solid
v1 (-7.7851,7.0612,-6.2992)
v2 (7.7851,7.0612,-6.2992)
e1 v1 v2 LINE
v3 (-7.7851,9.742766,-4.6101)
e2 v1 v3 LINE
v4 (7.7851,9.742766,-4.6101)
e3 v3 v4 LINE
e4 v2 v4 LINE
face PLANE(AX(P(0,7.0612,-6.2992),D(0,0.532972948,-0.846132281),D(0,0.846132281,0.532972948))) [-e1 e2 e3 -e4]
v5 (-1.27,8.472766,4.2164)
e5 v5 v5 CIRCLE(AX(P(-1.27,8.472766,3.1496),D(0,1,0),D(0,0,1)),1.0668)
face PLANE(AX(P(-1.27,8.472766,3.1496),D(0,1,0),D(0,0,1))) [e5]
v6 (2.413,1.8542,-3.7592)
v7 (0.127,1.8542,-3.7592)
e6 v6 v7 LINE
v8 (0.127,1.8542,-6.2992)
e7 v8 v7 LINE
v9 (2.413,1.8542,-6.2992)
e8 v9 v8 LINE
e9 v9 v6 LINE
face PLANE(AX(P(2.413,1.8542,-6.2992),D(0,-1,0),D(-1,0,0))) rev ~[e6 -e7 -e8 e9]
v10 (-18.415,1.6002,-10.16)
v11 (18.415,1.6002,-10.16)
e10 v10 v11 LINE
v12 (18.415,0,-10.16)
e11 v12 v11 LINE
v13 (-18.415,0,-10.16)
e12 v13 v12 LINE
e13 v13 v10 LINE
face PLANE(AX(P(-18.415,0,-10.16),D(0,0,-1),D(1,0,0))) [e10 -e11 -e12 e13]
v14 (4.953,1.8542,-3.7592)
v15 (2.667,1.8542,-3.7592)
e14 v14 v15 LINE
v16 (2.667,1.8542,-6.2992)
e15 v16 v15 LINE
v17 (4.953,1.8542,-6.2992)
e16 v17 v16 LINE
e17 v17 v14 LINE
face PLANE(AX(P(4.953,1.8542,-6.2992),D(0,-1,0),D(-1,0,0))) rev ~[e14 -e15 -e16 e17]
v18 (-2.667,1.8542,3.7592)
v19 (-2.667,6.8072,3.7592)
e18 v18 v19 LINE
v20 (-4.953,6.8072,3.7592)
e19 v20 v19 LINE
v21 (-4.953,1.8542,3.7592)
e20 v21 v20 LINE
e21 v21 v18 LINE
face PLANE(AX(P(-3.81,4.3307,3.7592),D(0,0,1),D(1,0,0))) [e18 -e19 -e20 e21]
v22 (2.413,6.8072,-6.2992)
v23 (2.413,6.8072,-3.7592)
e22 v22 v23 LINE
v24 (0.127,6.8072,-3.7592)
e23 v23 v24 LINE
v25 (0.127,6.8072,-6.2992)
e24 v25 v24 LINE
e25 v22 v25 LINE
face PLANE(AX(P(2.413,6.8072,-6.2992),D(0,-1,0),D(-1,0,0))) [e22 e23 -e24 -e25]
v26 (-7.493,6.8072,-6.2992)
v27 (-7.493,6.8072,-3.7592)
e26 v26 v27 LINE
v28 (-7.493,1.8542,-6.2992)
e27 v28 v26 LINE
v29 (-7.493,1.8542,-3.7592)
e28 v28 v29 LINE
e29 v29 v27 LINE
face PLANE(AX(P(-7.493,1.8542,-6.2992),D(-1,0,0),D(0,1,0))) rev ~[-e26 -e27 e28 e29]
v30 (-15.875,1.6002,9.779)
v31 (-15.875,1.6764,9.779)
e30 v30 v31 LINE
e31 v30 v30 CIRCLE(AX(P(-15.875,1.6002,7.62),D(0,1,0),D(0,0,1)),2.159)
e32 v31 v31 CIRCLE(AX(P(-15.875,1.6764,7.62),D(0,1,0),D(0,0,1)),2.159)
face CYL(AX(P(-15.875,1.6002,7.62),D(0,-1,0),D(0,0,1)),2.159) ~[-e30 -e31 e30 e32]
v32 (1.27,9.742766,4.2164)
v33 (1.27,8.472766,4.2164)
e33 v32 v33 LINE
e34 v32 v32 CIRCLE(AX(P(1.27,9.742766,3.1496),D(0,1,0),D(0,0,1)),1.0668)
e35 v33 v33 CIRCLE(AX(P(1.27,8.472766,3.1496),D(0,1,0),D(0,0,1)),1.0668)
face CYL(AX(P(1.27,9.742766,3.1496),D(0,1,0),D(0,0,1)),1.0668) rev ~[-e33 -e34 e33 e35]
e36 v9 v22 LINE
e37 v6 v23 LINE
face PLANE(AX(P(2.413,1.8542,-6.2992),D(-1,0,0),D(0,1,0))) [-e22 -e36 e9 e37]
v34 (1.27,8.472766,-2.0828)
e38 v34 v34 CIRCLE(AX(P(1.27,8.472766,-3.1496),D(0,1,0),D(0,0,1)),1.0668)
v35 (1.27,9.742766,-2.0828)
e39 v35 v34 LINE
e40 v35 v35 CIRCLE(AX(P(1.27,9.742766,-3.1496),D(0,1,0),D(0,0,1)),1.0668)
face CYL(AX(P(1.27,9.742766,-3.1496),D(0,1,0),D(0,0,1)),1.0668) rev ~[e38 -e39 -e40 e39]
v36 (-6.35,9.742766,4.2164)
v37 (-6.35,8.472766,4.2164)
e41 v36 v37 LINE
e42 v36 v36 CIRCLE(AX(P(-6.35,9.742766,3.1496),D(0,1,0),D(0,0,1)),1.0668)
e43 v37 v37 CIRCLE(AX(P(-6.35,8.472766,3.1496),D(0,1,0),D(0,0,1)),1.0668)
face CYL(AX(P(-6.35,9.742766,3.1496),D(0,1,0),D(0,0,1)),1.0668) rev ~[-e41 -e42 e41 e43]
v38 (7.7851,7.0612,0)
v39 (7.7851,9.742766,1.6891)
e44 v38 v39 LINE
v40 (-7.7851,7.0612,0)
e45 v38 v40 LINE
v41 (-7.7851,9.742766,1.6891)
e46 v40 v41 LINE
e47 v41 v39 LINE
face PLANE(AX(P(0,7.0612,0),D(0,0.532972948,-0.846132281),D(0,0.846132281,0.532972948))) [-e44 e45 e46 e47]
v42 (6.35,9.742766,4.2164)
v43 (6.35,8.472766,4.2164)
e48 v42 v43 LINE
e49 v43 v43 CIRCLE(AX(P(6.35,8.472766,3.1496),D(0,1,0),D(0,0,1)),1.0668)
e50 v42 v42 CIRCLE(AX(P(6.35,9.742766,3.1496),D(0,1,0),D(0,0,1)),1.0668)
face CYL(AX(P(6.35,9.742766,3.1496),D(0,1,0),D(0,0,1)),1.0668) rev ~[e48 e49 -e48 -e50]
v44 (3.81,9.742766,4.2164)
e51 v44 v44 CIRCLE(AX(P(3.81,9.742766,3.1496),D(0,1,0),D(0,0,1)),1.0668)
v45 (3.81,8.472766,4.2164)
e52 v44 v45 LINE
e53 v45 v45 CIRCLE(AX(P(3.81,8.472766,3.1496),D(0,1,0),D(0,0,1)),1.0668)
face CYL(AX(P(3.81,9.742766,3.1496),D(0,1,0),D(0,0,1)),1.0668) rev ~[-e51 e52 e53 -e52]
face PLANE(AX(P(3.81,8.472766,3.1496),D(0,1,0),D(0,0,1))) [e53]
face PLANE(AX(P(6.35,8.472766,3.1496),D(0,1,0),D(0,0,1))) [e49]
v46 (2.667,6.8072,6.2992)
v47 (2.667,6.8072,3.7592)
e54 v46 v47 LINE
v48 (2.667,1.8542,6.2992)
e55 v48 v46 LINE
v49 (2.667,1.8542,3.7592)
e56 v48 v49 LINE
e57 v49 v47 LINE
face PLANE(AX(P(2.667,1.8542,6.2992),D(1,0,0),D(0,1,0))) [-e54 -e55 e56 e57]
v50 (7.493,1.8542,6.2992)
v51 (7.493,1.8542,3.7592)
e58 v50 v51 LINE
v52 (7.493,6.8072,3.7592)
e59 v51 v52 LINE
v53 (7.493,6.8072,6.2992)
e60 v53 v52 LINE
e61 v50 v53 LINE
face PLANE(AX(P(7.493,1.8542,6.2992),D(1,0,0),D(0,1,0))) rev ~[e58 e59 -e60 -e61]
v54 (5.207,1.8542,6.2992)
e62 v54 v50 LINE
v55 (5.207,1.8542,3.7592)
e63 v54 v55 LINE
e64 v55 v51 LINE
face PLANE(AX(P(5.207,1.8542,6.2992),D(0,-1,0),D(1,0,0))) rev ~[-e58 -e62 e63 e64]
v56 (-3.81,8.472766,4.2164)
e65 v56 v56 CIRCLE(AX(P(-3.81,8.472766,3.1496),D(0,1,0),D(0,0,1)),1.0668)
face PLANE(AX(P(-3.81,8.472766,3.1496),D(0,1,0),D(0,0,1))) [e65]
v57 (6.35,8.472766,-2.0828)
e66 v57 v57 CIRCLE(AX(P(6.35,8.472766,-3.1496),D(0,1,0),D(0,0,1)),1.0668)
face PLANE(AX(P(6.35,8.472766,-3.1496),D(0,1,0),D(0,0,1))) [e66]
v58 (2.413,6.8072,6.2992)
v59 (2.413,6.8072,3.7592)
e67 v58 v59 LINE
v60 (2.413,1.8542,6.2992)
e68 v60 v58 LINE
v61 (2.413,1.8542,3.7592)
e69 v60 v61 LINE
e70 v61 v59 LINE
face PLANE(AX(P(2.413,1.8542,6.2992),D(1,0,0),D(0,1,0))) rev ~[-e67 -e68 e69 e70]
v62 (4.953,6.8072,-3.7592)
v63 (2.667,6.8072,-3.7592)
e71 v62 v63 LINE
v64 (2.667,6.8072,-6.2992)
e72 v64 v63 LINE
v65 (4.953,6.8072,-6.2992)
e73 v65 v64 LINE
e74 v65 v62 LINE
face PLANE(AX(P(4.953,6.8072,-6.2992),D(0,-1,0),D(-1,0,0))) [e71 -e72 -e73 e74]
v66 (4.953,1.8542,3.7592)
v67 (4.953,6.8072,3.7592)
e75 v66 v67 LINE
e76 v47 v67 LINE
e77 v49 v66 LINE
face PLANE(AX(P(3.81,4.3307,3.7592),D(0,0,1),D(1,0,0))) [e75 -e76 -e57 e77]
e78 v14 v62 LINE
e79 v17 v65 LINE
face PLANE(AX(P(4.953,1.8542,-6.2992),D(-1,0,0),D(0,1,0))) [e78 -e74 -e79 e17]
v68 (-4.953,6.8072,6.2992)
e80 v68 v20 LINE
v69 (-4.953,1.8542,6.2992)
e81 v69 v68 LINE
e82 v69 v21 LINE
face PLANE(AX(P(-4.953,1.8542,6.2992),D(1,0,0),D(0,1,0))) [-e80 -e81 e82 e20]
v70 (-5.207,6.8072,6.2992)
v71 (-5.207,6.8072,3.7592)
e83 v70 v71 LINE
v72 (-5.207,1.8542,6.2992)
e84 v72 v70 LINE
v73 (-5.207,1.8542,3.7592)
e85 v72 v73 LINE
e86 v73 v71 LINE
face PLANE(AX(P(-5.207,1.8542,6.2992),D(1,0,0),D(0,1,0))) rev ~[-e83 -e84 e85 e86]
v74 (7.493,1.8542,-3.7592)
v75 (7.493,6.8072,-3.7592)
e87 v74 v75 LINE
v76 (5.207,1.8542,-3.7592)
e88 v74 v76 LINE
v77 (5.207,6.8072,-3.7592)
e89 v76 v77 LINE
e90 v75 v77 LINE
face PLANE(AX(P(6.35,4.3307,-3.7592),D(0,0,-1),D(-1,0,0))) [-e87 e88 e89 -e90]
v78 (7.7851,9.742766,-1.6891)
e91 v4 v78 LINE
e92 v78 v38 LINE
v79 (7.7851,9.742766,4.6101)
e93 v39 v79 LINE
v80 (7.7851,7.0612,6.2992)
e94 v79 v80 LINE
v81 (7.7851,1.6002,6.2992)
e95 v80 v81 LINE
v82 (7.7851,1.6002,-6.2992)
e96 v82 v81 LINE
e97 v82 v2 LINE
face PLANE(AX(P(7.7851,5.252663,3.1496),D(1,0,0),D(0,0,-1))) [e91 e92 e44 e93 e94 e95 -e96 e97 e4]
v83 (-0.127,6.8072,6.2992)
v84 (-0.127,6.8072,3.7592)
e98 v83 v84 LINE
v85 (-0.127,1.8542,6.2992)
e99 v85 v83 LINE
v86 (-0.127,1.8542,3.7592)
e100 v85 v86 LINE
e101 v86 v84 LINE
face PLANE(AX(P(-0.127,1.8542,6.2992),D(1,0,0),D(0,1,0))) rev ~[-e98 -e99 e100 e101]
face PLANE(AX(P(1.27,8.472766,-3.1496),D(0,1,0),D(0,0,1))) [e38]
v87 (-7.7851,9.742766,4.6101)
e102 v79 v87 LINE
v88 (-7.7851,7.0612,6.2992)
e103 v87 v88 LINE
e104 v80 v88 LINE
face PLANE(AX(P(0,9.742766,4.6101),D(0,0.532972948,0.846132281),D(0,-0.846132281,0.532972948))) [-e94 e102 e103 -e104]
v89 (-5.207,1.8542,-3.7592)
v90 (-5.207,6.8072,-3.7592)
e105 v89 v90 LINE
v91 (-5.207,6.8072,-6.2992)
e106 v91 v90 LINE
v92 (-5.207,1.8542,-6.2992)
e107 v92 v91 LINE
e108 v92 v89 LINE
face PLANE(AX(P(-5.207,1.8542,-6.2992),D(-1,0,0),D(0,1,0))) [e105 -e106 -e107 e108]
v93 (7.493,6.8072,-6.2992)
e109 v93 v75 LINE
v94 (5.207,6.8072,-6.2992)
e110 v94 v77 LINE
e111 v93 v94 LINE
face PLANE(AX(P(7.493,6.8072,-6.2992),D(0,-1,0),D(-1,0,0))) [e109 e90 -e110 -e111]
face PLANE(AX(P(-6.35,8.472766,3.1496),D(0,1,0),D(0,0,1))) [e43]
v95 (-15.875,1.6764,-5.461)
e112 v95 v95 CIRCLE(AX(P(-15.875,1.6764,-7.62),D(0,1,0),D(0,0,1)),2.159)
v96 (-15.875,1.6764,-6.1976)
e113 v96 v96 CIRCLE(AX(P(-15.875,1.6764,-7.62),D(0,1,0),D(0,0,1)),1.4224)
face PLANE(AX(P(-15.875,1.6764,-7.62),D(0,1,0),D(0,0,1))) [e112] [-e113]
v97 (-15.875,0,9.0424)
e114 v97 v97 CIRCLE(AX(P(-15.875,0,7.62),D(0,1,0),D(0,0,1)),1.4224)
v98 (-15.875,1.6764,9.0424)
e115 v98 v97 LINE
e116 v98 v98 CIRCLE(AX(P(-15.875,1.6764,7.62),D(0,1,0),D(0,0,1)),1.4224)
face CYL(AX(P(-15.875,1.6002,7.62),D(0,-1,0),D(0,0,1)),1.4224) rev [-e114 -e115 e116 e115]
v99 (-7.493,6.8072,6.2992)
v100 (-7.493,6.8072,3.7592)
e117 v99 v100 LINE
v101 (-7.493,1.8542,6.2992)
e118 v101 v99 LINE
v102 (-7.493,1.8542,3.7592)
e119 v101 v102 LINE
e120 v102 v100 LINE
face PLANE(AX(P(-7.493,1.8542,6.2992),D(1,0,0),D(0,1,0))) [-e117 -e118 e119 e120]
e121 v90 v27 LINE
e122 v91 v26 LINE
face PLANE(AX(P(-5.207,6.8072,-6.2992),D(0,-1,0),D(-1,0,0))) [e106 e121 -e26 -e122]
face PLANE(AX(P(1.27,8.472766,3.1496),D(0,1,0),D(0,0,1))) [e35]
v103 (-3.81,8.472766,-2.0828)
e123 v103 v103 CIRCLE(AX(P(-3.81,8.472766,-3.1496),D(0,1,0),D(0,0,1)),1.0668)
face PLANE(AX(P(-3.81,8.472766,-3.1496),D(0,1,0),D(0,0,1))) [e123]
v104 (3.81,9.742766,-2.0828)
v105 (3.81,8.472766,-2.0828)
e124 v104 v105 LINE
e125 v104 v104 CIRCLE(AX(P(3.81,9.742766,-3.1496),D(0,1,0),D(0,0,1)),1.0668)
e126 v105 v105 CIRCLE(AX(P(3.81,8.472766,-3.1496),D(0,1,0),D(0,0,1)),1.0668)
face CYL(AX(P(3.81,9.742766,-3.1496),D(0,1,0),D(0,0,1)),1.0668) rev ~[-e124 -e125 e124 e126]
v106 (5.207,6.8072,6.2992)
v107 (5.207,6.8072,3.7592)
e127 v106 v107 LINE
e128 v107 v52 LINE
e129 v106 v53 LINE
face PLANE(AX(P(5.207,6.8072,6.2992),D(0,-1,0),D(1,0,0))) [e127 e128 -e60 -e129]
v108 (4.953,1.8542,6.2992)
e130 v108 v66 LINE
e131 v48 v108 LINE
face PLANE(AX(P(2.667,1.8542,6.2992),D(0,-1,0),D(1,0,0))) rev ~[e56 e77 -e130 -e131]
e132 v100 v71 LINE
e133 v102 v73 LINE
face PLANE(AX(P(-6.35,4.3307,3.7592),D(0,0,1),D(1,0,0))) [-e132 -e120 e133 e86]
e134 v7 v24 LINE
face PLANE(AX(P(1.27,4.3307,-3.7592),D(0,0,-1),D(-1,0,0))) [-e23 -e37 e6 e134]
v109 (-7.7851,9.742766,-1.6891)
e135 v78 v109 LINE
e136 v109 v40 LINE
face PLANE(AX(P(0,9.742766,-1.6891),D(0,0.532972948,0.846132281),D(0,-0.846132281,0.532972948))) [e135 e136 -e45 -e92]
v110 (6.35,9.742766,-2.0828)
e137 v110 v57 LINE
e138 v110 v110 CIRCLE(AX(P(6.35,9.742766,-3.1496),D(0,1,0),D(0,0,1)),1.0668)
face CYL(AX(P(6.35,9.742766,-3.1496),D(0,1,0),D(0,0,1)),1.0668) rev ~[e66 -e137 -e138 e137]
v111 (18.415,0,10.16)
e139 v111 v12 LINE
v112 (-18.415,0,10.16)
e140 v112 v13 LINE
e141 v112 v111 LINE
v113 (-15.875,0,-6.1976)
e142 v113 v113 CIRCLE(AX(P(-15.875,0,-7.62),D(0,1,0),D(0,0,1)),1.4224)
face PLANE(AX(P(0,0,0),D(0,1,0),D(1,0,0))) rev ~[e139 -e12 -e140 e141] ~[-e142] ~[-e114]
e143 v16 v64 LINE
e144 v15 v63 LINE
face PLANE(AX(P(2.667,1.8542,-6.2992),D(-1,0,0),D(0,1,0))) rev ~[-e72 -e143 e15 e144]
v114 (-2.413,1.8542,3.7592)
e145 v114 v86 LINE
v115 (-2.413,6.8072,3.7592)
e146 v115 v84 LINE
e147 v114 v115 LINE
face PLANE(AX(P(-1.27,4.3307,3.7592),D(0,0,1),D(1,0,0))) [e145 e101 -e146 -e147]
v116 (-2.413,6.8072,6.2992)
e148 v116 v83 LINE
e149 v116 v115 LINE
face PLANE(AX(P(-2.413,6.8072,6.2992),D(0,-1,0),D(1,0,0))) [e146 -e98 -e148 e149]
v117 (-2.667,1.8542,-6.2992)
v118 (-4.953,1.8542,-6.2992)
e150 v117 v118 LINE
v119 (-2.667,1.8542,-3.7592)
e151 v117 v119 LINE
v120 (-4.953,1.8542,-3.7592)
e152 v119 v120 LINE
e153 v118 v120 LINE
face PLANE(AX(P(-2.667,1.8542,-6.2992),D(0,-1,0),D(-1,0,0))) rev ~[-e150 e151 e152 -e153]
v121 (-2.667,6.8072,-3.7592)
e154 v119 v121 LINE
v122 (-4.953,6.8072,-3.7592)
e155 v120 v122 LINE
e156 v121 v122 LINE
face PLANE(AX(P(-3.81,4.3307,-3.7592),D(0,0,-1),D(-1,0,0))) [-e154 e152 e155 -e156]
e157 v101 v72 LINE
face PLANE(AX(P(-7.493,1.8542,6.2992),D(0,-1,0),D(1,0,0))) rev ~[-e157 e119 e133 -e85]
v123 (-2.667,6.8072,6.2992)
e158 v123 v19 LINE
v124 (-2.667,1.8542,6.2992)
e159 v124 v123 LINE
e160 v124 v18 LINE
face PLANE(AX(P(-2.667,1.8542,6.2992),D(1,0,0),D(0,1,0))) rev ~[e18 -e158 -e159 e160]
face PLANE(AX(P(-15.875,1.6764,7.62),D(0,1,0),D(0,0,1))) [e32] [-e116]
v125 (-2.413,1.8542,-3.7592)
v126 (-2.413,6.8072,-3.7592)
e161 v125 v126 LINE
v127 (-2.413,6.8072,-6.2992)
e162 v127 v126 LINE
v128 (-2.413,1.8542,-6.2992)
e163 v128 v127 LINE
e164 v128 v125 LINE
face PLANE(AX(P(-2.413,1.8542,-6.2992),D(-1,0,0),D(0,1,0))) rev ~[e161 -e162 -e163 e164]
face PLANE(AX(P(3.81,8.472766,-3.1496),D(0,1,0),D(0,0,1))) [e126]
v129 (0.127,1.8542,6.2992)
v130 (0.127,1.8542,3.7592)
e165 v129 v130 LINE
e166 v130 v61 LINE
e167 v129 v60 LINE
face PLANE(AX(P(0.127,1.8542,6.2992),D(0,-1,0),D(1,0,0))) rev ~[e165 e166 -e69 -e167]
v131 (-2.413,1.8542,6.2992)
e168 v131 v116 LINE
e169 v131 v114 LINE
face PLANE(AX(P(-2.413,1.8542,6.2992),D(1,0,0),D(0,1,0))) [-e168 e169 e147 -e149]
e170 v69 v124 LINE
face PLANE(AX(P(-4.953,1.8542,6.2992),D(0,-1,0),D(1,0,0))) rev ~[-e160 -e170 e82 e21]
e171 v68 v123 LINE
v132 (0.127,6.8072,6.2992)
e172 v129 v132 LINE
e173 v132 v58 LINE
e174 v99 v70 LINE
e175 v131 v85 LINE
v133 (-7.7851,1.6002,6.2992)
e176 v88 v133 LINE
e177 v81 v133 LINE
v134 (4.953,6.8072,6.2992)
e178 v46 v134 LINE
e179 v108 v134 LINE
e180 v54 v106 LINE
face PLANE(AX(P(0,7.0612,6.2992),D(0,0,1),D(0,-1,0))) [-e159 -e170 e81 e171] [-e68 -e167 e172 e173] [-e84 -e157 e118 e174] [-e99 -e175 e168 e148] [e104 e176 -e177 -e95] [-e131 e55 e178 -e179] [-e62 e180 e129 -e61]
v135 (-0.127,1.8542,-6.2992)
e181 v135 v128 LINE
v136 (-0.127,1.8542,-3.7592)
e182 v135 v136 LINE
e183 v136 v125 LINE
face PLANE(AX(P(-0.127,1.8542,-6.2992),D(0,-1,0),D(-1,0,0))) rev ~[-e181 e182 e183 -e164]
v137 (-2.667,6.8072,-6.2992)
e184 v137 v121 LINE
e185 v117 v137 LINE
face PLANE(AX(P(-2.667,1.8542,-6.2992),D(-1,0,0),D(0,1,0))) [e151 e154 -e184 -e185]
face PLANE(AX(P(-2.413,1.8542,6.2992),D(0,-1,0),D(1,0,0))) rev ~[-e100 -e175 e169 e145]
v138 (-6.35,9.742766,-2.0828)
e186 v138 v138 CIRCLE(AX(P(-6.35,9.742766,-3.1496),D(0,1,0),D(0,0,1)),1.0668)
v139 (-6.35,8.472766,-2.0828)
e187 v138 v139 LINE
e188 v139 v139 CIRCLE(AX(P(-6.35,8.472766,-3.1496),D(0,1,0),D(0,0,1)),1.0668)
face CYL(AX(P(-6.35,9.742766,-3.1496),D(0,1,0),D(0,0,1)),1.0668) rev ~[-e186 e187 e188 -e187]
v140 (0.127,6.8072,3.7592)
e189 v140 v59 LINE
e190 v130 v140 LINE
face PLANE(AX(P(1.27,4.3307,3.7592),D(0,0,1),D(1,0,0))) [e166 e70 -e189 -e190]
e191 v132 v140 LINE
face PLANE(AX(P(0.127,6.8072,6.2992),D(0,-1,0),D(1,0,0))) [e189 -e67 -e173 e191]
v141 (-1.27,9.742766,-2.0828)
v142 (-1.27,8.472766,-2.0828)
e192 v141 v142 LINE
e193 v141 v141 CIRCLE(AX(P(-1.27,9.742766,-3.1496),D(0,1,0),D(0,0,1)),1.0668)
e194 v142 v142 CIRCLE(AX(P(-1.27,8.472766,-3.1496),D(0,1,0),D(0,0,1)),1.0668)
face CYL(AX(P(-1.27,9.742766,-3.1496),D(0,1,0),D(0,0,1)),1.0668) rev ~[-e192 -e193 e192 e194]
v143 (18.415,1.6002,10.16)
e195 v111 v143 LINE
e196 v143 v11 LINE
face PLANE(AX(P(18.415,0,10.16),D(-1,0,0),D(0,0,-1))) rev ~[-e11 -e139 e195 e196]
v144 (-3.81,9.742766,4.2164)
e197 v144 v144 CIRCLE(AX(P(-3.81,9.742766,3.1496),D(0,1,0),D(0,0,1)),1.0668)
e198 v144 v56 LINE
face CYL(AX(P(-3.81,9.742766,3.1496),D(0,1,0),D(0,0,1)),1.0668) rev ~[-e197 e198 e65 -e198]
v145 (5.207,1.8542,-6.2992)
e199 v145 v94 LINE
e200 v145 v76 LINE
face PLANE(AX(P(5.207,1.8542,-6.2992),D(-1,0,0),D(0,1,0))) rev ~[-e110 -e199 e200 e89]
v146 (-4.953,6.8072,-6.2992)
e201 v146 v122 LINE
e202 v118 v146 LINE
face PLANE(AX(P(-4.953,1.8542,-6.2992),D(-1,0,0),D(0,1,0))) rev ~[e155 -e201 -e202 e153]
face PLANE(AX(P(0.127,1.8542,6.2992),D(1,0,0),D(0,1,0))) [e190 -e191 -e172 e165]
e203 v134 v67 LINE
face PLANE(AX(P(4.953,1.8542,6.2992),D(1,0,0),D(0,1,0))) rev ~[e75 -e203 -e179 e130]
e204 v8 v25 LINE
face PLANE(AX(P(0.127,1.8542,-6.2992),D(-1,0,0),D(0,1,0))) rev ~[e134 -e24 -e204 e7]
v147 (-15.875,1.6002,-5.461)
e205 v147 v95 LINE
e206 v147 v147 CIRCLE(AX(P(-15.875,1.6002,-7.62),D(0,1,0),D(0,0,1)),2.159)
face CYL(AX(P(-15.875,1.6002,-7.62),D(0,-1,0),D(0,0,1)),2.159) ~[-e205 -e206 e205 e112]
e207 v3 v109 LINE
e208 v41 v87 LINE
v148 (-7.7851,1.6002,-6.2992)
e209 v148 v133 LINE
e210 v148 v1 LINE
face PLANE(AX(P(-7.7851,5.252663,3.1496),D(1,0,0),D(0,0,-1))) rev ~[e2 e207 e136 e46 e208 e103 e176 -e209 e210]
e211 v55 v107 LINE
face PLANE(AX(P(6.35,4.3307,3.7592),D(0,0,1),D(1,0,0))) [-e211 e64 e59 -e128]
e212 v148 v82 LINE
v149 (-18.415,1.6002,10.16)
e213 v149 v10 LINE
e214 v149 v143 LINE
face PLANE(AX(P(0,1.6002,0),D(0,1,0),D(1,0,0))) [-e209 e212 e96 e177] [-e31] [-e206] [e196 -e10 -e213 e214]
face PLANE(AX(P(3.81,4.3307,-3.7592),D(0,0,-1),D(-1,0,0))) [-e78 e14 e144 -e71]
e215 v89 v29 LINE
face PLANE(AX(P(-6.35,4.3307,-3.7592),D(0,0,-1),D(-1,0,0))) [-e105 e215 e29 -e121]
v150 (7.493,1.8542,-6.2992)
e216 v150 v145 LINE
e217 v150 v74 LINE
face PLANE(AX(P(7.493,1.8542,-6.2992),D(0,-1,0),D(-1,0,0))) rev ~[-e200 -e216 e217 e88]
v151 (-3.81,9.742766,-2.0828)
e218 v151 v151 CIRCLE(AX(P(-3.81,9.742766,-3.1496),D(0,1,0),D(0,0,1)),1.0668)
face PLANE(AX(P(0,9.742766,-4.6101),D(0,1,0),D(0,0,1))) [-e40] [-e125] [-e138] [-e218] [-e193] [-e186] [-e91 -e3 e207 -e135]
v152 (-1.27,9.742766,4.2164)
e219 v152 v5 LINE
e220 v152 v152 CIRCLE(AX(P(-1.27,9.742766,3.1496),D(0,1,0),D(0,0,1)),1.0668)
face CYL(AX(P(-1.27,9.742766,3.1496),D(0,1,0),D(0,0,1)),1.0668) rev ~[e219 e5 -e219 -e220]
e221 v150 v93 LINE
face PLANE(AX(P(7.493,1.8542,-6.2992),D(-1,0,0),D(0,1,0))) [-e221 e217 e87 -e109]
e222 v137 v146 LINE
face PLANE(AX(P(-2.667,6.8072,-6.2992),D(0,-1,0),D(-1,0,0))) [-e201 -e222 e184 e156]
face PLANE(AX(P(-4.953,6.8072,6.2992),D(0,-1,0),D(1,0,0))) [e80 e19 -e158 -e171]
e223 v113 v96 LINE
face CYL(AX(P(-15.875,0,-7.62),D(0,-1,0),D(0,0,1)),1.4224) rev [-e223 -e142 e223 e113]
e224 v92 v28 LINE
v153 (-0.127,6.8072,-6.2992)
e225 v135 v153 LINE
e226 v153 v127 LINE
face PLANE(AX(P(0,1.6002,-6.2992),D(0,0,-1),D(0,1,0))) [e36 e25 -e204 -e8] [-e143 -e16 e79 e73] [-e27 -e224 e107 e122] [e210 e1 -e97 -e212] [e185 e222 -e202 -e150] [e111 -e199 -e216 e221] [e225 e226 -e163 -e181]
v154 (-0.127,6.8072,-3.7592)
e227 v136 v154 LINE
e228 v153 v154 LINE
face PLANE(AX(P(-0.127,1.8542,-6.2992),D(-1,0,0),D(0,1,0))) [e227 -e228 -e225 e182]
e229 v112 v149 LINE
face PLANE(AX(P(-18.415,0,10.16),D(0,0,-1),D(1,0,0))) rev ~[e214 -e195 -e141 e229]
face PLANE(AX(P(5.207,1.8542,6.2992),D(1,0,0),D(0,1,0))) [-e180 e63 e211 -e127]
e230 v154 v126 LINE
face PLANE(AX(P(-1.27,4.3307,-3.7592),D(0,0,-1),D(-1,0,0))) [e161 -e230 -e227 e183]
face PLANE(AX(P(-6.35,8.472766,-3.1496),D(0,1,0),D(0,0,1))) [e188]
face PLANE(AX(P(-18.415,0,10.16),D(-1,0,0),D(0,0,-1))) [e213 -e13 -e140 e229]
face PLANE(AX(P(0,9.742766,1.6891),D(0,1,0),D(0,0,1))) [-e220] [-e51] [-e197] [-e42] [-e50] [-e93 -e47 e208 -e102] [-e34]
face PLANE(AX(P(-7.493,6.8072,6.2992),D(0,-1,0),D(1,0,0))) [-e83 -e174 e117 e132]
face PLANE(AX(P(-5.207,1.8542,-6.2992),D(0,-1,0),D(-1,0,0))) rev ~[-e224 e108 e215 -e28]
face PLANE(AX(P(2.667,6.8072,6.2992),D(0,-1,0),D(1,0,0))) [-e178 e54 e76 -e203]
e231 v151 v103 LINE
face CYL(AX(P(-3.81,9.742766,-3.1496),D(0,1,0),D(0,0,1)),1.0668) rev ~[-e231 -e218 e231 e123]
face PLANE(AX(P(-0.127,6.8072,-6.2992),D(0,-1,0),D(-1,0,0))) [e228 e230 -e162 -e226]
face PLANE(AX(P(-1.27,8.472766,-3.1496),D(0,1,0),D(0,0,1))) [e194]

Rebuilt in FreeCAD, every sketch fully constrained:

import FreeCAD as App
import Part
import Sketcher

V = App.Vector
Q = App.Units.Quantity

doc = App.newDocument("Part")
params = doc.addObject("Spreadsheet::Sheet", "Params")
for row, (alias, value) in enumerate([
    ("sketch1_height", "0.8 in"),
    ("sketch1_width", "1.45 in"),
    ("pad1_length", "0.063 in"),
    ("sketch2_diameter", "0.112 in"),
    ("sketch3_width", "0.215 in"),
    ("sketch3_height", "0.248 in"),
    ("sketch3_height2", "0.115 in"),
    ("pad2_length", "0.613 in"),
    ("sketch4_width", "0.215 in"),
    ("sketch4_height", "0.248 in"),
    ("sketch4_height2", "0.115 in"),
    ("pad3_length", "0.613 in"),
    ("sketch5_width", "0.09 in"),
    ("sketch5_height", "0.195 in"),
    ("pocket2_length", "0.1 in"),
    ("sketch6_width", "0.09 in"),
    ("sketch6_height", "0.195 in"),
    ("pocket3_length", "0.1 in"),
    ("sketch7_diameter", "0.084 in"),
    ("pocket4_length", "0.05 in"),
    ("sketch8_diameter", "0.084 in"),
    ("pocket5_length", "0.05 in"),
    ("sketch9_diameter", "0.17 in"),
    ("sketch9_diameter2", "0.112 in"),
    ("pad4_length", "0.003 in"),
], start=1):
    params.set(f"A{row}", alias)
    params.set(f"B{row}", "=" + value)
    params.setAlias(f"B{row}", alias)

body = doc.addObject("PartDesign::Body", "Body")

# Sketch on XZ plane
sketch1 = body.newObject("Sketcher::SketchObject", "Sketch")
sketch1.AttachmentSupport = (doc.getObject("XZ_Plane"), [""])
sketch1.MapMode = "FlatFace"
sketch1.addGeometry([
    Part.LineSegment(V(-18, -10, 0), V(-18, 10, 0)),
    Part.LineSegment(V(-18, 10, 0), V(18, 10, 0)),
    Part.LineSegment(V(18, 10, 0), V(18, -10, 0)),
    Part.LineSegment(V(18, -10, 0), V(-18, -10, 0)),
], False)
sketch1.addConstraint([
    Sketcher.Constraint("Coincident", 0, 2, 1, 1),
    Sketcher.Constraint("Coincident", 1, 2, 2, 1),
    Sketcher.Constraint("Coincident", 2, 2, 3, 1),
    Sketcher.Constraint("Coincident", 3, 2, 0, 1),
    Sketcher.Constraint("Vertical", 0),
    Sketcher.Constraint("Horizontal", 1),
    Sketcher.Constraint("Vertical", 2),
    Sketcher.Constraint("Horizontal", 3),
    Sketcher.Constraint("Symmetric", 0, 2, 2, 2, -1, 1),
    Sketcher.Constraint("DistanceY", 0, 1, 0, 2, Q("0.8 in")),
    Sketcher.Constraint("DistanceX", 1, 1, 1, 2, Q("1.45 in")),
])
sketch1.setExpression("Constraints[9]", "Params.sketch1_height")
sketch1.setExpression("Constraints[10]", "Params.sketch1_width")
pad1 = body.newObject("PartDesign::Pad", "Pad")
pad1.Profile = sketch1
pad1.setExpression("Length", "Params.pad1_length")
pad1.Reversed = True

# Sketch on XZ plane
sketch2 = body.newObject("Sketcher::SketchObject", "Sketch001")
sketch2.AttachmentSupport = (doc.getObject("XZ_Plane"), [""])
sketch2.MapMode = "FlatFace"
sketch2.addGeometry([
    Part.Circle(V(-15.9, -7.6, 0), V(0, 0, 1), 1.4),
    Part.Circle(V(-15.9, 7.6, 0), V(0, 0, 1), 1.4),
], False)
sketch2.addConstraint([
    Sketcher.Constraint("Equal", 0, 1),
    Sketcher.Constraint("Symmetric", 0, 3, 1, 3, -1),
    Sketcher.Constraint("Diameter", 0, Q("0.112 in")),
    Sketcher.Constraint("DistanceY", 0, 3, -1, 1, Q("0.3 in")),
    Sketcher.Constraint("DistanceX", 0, 3, -1, 1, Q("0.625 in")),
])
sketch2.setExpression("Constraints[2]", "Params.sketch2_diameter")
pocket1 = body.newObject("PartDesign::Pocket", "Pocket")
pocket1.Profile = sketch2
pocket1.Type = "ThroughAll"

# Sketch on YZ plane
sketch3 = body.newObject("Sketcher::SketchObject", "Sketch002")
sketch3.AttachmentSupport = (doc.getObject("YZ_Plane"), [""])
sketch3.MapMode = "FlatFace"
sketch3.addGeometry([
    Part.LineSegment(V(1.6, 0, 0), V(1.6, -6.3, 0)),  # 0
    Part.LineSegment(V(1.6, -6.3, 0), V(7.1, -6.3, 0)),  # 1
    Part.LineSegment(V(7.1, -6.3, 0), V(9.7, -4.6, 0)),  # 2
    Part.LineSegment(V(9.7, -4.6, 0), V(9.7, -1.7, 0)),  # 3
    Part.LineSegment(V(9.7, -1.7, 0), V(7.1, 0, 0)),  # 4
    Part.LineSegment(V(7.1, 0, 0), V(1.6, 0, 0)),  # 5
], False)
sketch3.addConstraint([
    Sketcher.Constraint("Coincident", 0, 2, 1, 1),
    Sketcher.Constraint("Coincident", 1, 2, 2, 1),
    Sketcher.Constraint("Coincident", 2, 2, 3, 1),
    Sketcher.Constraint("Coincident", 3, 2, 4, 1),
    Sketcher.Constraint("Coincident", 4, 2, 5, 1),
    Sketcher.Constraint("Coincident", 5, 2, 0, 1),
    Sketcher.Constraint("Vertical", 0),
    Sketcher.Constraint("Horizontal", 1),
    Sketcher.Constraint("Vertical", 3),
    Sketcher.Constraint("Horizontal", 5),
    Sketcher.Constraint("PointOnObject", 4, 2, -1),
    Sketcher.Constraint("Vertical", 1, 2, 4, 2),
    Sketcher.Constraint("Equal", 2, 4),
    Sketcher.Constraint("DistanceX", 1, 1, 1, 2, Q("0.215 in")),
    Sketcher.Constraint("DistanceY", 0, 2, 0, 1, Q("0.248 in")),
    Sketcher.Constraint("DistanceY", 3, 1, 3, 2, Q("0.115 in")),
    Sketcher.Constraint("DistanceX", -1, 1, 0, 2, Q("0.063 in")),
    Sketcher.Constraint("Distance", 2, 3.169204),
])
sketch3.setExpression("Constraints[13]", "Params.sketch3_width")
sketch3.setExpression("Constraints[14]", "Params.sketch3_height")
sketch3.setExpression("Constraints[15]", "Params.sketch3_height2")
pad2 = body.newObject("PartDesign::Pad", "Pad001")
pad2.Profile = sketch3
pad2.setExpression("Length", "Params.pad2_length")
pad2.Midplane = True

# Sketch on YZ plane
sketch4 = body.newObject("Sketcher::SketchObject", "Sketch003")
sketch4.AttachmentSupport = (doc.getObject("YZ_Plane"), [""])
sketch4.MapMode = "FlatFace"
sketch4.addGeometry([
    Part.LineSegment(V(1.6, 6.3, 0), V(1.6, 0, 0)),  # 0
    Part.LineSegment(V(1.6, 0, 0), V(7.1, 0, 0)),  # 1
    Part.LineSegment(V(7.1, 0, 0), V(9.7, 1.7, 0)),  # 2
    Part.LineSegment(V(9.7, 1.7, 0), V(9.7, 4.6, 0)),  # 3
    Part.LineSegment(V(9.7, 4.6, 0), V(7.1, 6.3, 0)),  # 4
    Part.LineSegment(V(7.1, 6.3, 0), V(1.6, 6.3, 0)),  # 5
], False)
sketch4.addConstraint([
    Sketcher.Constraint("Coincident", 0, 2, 1, 1),
    Sketcher.Constraint("Coincident", 1, 2, 2, 1),
    Sketcher.Constraint("Coincident", 2, 2, 3, 1),
    Sketcher.Constraint("Coincident", 3, 2, 4, 1),
    Sketcher.Constraint("Coincident", 4, 2, 5, 1),
    Sketcher.Constraint("Coincident", 5, 2, 0, 1),
    Sketcher.Constraint("Vertical", 0),
    Sketcher.Constraint("Horizontal", 1),
    Sketcher.Constraint("Vertical", 3),
    Sketcher.Constraint("Horizontal", 5),
    Sketcher.Constraint("PointOnObject", 0, 2, -1),
    Sketcher.Constraint("Vertical", 1, 2, 4, 2),
    Sketcher.Constraint("Equal", 2, 4),
    Sketcher.Constraint("DistanceX", 1, 1, 1, 2, Q("0.215 in")),
    Sketcher.Constraint("DistanceY", 0, 2, 0, 1, Q("0.248 in")),
    Sketcher.Constraint("DistanceY", 3, 1, 3, 2, Q("0.115 in")),
    Sketcher.Constraint("DistanceX", -1, 1, 0, 2, Q("0.063 in")),
    Sketcher.Constraint("Distance", 2, 3.169204),
])
sketch4.setExpression("Constraints[13]", "Params.sketch4_width")
sketch4.setExpression("Constraints[14]", "Params.sketch4_height")
sketch4.setExpression("Constraints[15]", "Params.sketch4_height2")
pad3 = body.newObject("PartDesign::Pad", "Pad002")
pad3.Profile = sketch4
pad3.setExpression("Length", "Params.pad3_length")
pad3.Midplane = True

# Sketch on XY plane
sketch5 = body.newObject("Sketcher::SketchObject", "Sketch004")
sketch5.AttachmentSupport = (doc.getObject("XY_Plane"), [""])
sketch5.MapMode = "FlatFace"
sketch5.AttachmentOffset = App.Placement(V(0, 0, 0.248 * 25.4), App.Rotation())
sketch5.addGeometry([
    Part.LineSegment(V(-2.4, 6.8, 0), V(-2.4, 1.9, 0)),  # 0
    Part.LineSegment(V(-2.4, 1.9, 0), V(-0.1, 1.9, 0)),  # 1
    Part.LineSegment(V(-0.1, 1.9, 0), V(-0.1, 6.8, 0)),  # 2
    Part.LineSegment(V(-0.1, 6.8, 0), V(-2.4, 6.8, 0)),  # 3
    Part.LineSegment(V(-5, 6.8, 0), V(-5, 1.9, 0)),  # 4
    Part.LineSegment(V(-5, 1.9, 0), V(-2.7, 1.9, 0)),  # 5
    Part.LineSegment(V(-2.7, 1.9, 0), V(-2.7, 6.8, 0)),  # 6
    Part.LineSegment(V(-2.7, 6.8, 0), V(-5, 6.8, 0)),  # 7
    Part.LineSegment(V(-7.5, 6.8, 0), V(-7.5, 1.9, 0)),  # 8
    Part.LineSegment(V(-7.5, 1.9, 0), V(-5.2, 1.9, 0)),  # 9
    Part.LineSegment(V(-5.2, 1.9, 0), V(-5.2, 6.8, 0)),  # 10
    Part.LineSegment(V(-5.2, 6.8, 0), V(-7.5, 6.8, 0)),  # 11
    Part.LineSegment(V(0.1, 6.8, 0), V(0.1, 1.9, 0)),  # 12
    Part.LineSegment(V(0.1, 1.9, 0), V(2.4, 1.9, 0)),  # 13
    Part.LineSegment(V(2.4, 1.9, 0), V(2.4, 6.8, 0)),  # 14
    Part.LineSegment(V(2.4, 6.8, 0), V(0.1, 6.8, 0)),  # 15
    Part.LineSegment(V(2.7, 6.8, 0), V(2.7, 1.9, 0)),  # 16
    Part.LineSegment(V(2.7, 1.9, 0), V(5, 1.9, 0)),  # 17
    Part.LineSegment(V(5, 1.9, 0), V(5, 6.8, 0)),  # 18
    Part.LineSegment(V(5, 6.8, 0), V(2.7, 6.8, 0)),  # 19
    Part.LineSegment(V(5.2, 6.8, 0), V(5.2, 1.9, 0)),  # 20
    Part.LineSegment(V(5.2, 1.9, 0), V(7.5, 1.9, 0)),  # 21
    Part.LineSegment(V(7.5, 1.9, 0), V(7.5, 6.8, 0)),  # 22
    Part.LineSegment(V(7.5, 6.8, 0), V(5.2, 6.8, 0)),  # 23
], False)
sketch5.addConstraint([
    Sketcher.Constraint("Coincident", 0, 2, 1, 1),
    Sketcher.Constraint("Coincident", 1, 2, 2, 1),
    Sketcher.Constraint("Coincident", 2, 2, 3, 1),
    Sketcher.Constraint("Coincident", 3, 2, 0, 1),
    Sketcher.Constraint("Coincident", 4, 2, 5, 1),
    Sketcher.Constraint("Coincident", 5, 2, 6, 1),
    Sketcher.Constraint("Coincident", 6, 2, 7, 1),
    Sketcher.Constraint("Coincident", 7, 2, 4, 1),
    Sketcher.Constraint("Coincident", 8, 2, 9, 1),
    Sketcher.Constraint("Coincident", 9, 2, 10, 1),
    Sketcher.Constraint("Coincident", 10, 2, 11, 1),
    Sketcher.Constraint("Coincident", 11, 2, 8, 1),
    Sketcher.Constraint("Coincident", 12, 2, 13, 1),
    Sketcher.Constraint("Coincident", 13, 2, 14, 1),
    Sketcher.Constraint("Coincident", 14, 2, 15, 1),
    Sketcher.Constraint("Coincident", 15, 2, 12, 1),
    Sketcher.Constraint("Coincident", 16, 2, 17, 1),
    Sketcher.Constraint("Coincident", 17, 2, 18, 1),
    Sketcher.Constraint("Coincident", 18, 2, 19, 1),
    Sketcher.Constraint("Coincident", 19, 2, 16, 1),
    Sketcher.Constraint("Coincident", 20, 2, 21, 1),
    Sketcher.Constraint("Coincident", 21, 2, 22, 1),
    Sketcher.Constraint("Coincident", 22, 2, 23, 1),
    Sketcher.Constraint("Coincident", 23, 2, 20, 1),
    Sketcher.Constraint("Vertical", 0),
    Sketcher.Constraint("Horizontal", 1),
    Sketcher.Constraint("Vertical", 2),
    Sketcher.Constraint("Horizontal", 3),
    Sketcher.Constraint("Vertical", 4),
    Sketcher.Constraint("Horizontal", 5),
    Sketcher.Constraint("Vertical", 6),
    Sketcher.Constraint("Horizontal", 7),
    Sketcher.Constraint("Vertical", 8),
    Sketcher.Constraint("Horizontal", 9),
    Sketcher.Constraint("Vertical", 10),
    Sketcher.Constraint("Horizontal", 11),
    Sketcher.Constraint("Vertical", 12),
    Sketcher.Constraint("Horizontal", 13),
    Sketcher.Constraint("Vertical", 14),
    Sketcher.Constraint("Horizontal", 15),
    Sketcher.Constraint("Vertical", 16),
    Sketcher.Constraint("Horizontal", 17),
    Sketcher.Constraint("Vertical", 18),
    Sketcher.Constraint("Horizontal", 19),
    Sketcher.Constraint("Vertical", 20),
    Sketcher.Constraint("Horizontal", 21),
    Sketcher.Constraint("Vertical", 22),
    Sketcher.Constraint("Horizontal", 23),
    Sketcher.Constraint("Symmetric", 1, 2, 12, 2, -2),
    Sketcher.Constraint("Symmetric", 3, 2, 14, 2, -2),
    Sketcher.Constraint("Symmetric", 5, 2, 16, 2, -2),
    Sketcher.Constraint("Symmetric", 7, 2, 18, 2, -2),
    Sketcher.Constraint("Symmetric", 9, 2, 20, 2, -2),
    Sketcher.Constraint("Symmetric", 11, 2, 22, 2, -2),
    Sketcher.Constraint("Horizontal", 1, 2, 4, 2),
    Sketcher.Constraint("Horizontal", 3, 2, 6, 2),
    Sketcher.Constraint("Horizontal", 5, 2, 8, 2),
    Sketcher.Constraint("Horizontal", 7, 2, 10, 2),
    Sketcher.Constraint("Equal", 3, 5),
    Sketcher.Constraint("Equal", 7, 9),
    Sketcher.Constraint("DistanceX", 1, 1, 1, 2, Q("0.09 in")),
    Sketcher.Constraint("DistanceX", 4, 2, 0, 2, Q("0.1 in")),
    Sketcher.Constraint("DistanceX", 8, 2, 4, 2, Q("0.1 in")),
    Sketcher.Constraint("DistanceX", 0, 2, 12, 2, Q("0.1 in")),
    Sketcher.Constraint("DistanceY", 0, 2, 0, 1, Q("0.195 in")),
    Sketcher.Constraint("DistanceY", -1, 1, 0, 2, Q("0.073 in")),
])
sketch5.setExpression("Constraints[60]", "Params.sketch5_width")
sketch5.setExpression("Constraints[64]", "Params.sketch5_height")
pocket2 = body.newObject("PartDesign::Pocket", "Pocket001")
pocket2.Profile = sketch5
pocket2.setExpression("Length", "Params.pocket2_length")

# Sketch on XY plane
sketch6 = body.newObject("Sketcher::SketchObject", "Sketch005")
sketch6.AttachmentSupport = (doc.getObject("XY_Plane"), [""])
sketch6.MapMode = "FlatFace"
sketch6.AttachmentOffset = App.Placement(V(0, 0, -0.248 * 25.4), App.Rotation())
sketch6.addGeometry([
    Part.LineSegment(V(2.4, 6.8, 0), V(2.4, 1.9, 0)),  # 0
    Part.LineSegment(V(2.4, 1.9, 0), V(0.1, 1.9, 0)),  # 1
    Part.LineSegment(V(0.1, 1.9, 0), V(0.1, 6.8, 0)),  # 2
    Part.LineSegment(V(0.1, 6.8, 0), V(2.4, 6.8, 0)),  # 3
    Part.LineSegment(V(5, 6.8, 0), V(5, 1.9, 0)),  # 4
    Part.LineSegment(V(5, 1.9, 0), V(2.7, 1.9, 0)),  # 5
    Part.LineSegment(V(2.7, 1.9, 0), V(2.7, 6.8, 0)),  # 6
    Part.LineSegment(V(2.7, 6.8, 0), V(5, 6.8, 0)),  # 7
    Part.LineSegment(V(7.5, 6.8, 0), V(7.5, 1.9, 0)),  # 8
    Part.LineSegment(V(7.5, 1.9, 0), V(5.2, 1.9, 0)),  # 9
    Part.LineSegment(V(5.2, 1.9, 0), V(5.2, 6.8, 0)),  # 10
    Part.LineSegment(V(5.2, 6.8, 0), V(7.5, 6.8, 0)),  # 11
    Part.LineSegment(V(-0.1, 6.8, 0), V(-0.1, 1.9, 0)),  # 12
    Part.LineSegment(V(-0.1, 1.9, 0), V(-2.4, 1.9, 0)),  # 13
    Part.LineSegment(V(-2.4, 1.9, 0), V(-2.4, 6.8, 0)),  # 14
    Part.LineSegment(V(-2.4, 6.8, 0), V(-0.1, 6.8, 0)),  # 15
    Part.LineSegment(V(-2.7, 6.8, 0), V(-2.7, 1.9, 0)),  # 16
    Part.LineSegment(V(-2.7, 1.9, 0), V(-5, 1.9, 0)),  # 17
    Part.LineSegment(V(-5, 1.9, 0), V(-5, 6.8, 0)),  # 18
    Part.LineSegment(V(-5, 6.8, 0), V(-2.7, 6.8, 0)),  # 19
    Part.LineSegment(V(-5.2, 6.8, 0), V(-5.2, 1.9, 0)),  # 20
    Part.LineSegment(V(-5.2, 1.9, 0), V(-7.5, 1.9, 0)),  # 21
    Part.LineSegment(V(-7.5, 1.9, 0), V(-7.5, 6.8, 0)),  # 22
    Part.LineSegment(V(-7.5, 6.8, 0), V(-5.2, 6.8, 0)),  # 23
], False)
sketch6.addConstraint([
    Sketcher.Constraint("Coincident", 0, 2, 1, 1),
    Sketcher.Constraint("Coincident", 1, 2, 2, 1),
    Sketcher.Constraint("Coincident", 2, 2, 3, 1),
    Sketcher.Constraint("Coincident", 3, 2, 0, 1),
    Sketcher.Constraint("Coincident", 4, 2, 5, 1),
    Sketcher.Constraint("Coincident", 5, 2, 6, 1),
    Sketcher.Constraint("Coincident", 6, 2, 7, 1),
    Sketcher.Constraint("Coincident", 7, 2, 4, 1),
    Sketcher.Constraint("Coincident", 8, 2, 9, 1),
    Sketcher.Constraint("Coincident", 9, 2, 10, 1),
    Sketcher.Constraint("Coincident", 10, 2, 11, 1),
    Sketcher.Constraint("Coincident", 11, 2, 8, 1),
    Sketcher.Constraint("Coincident", 12, 2, 13, 1),
    Sketcher.Constraint("Coincident", 13, 2, 14, 1),
    Sketcher.Constraint("Coincident", 14, 2, 15, 1),
    Sketcher.Constraint("Coincident", 15, 2, 12, 1),
    Sketcher.Constraint("Coincident", 16, 2, 17, 1),
    Sketcher.Constraint("Coincident", 17, 2, 18, 1),
    Sketcher.Constraint("Coincident", 18, 2, 19, 1),
    Sketcher.Constraint("Coincident", 19, 2, 16, 1),
    Sketcher.Constraint("Coincident", 20, 2, 21, 1),
    Sketcher.Constraint("Coincident", 21, 2, 22, 1),
    Sketcher.Constraint("Coincident", 22, 2, 23, 1),
    Sketcher.Constraint("Coincident", 23, 2, 20, 1),
    Sketcher.Constraint("Vertical", 0),
    Sketcher.Constraint("Horizontal", 1),
    Sketcher.Constraint("Vertical", 2),
    Sketcher.Constraint("Horizontal", 3),
    Sketcher.Constraint("Vertical", 4),
    Sketcher.Constraint("Horizontal", 5),
    Sketcher.Constraint("Vertical", 6),
    Sketcher.Constraint("Horizontal", 7),
    Sketcher.Constraint("Vertical", 8),
    Sketcher.Constraint("Horizontal", 9),
    Sketcher.Constraint("Vertical", 10),
    Sketcher.Constraint("Horizontal", 11),
    Sketcher.Constraint("Vertical", 12),
    Sketcher.Constraint("Horizontal", 13),
    Sketcher.Constraint("Vertical", 14),
    Sketcher.Constraint("Horizontal", 15),
    Sketcher.Constraint("Vertical", 16),
    Sketcher.Constraint("Horizontal", 17),
    Sketcher.Constraint("Vertical", 18),
    Sketcher.Constraint("Horizontal", 19),
    Sketcher.Constraint("Vertical", 20),
    Sketcher.Constraint("Horizontal", 21),
    Sketcher.Constraint("Vertical", 22),
    Sketcher.Constraint("Horizontal", 23),
    Sketcher.Constraint("Symmetric", 1, 2, 12, 2, -2),
    Sketcher.Constraint("Symmetric", 3, 2, 14, 2, -2),
    Sketcher.Constraint("Symmetric", 5, 2, 16, 2, -2),
    Sketcher.Constraint("Symmetric", 7, 2, 18, 2, -2),
    Sketcher.Constraint("Symmetric", 9, 2, 20, 2, -2),
    Sketcher.Constraint("Symmetric", 11, 2, 22, 2, -2),
    Sketcher.Constraint("Horizontal", 1, 2, 4, 2),
    Sketcher.Constraint("Horizontal", 3, 2, 6, 2),
    Sketcher.Constraint("Horizontal", 5, 2, 8, 2),
    Sketcher.Constraint("Horizontal", 7, 2, 10, 2),
    Sketcher.Constraint("Equal", 3, 5),
    Sketcher.Constraint("Equal", 7, 9),
    Sketcher.Constraint("DistanceX", 1, 2, 1, 1, Q("0.09 in")),
    Sketcher.Constraint("DistanceX", 0, 2, 4, 2, Q("0.1 in")),
    Sketcher.Constraint("DistanceX", 4, 2, 8, 2, Q("0.1 in")),
    Sketcher.Constraint("DistanceX", 12, 2, 0, 2, Q("0.1 in")),
    Sketcher.Constraint("DistanceY", 0, 2, 0, 1, Q("0.195 in")),
    Sketcher.Constraint("DistanceY", -1, 1, 0, 2, Q("0.073 in")),
])
sketch6.setExpression("Constraints[60]", "Params.sketch6_width")
sketch6.setExpression("Constraints[64]", "Params.sketch6_height")
pocket3 = body.newObject("PartDesign::Pocket", "Pocket002")
pocket3.Profile = sketch6
pocket3.setExpression("Length", "Params.pocket3_length")
pocket3.Reversed = True

# Sketch on XZ plane
sketch7 = body.newObject("Sketcher::SketchObject", "Sketch006")
sketch7.AttachmentSupport = (doc.getObject("XZ_Plane"), [""])
sketch7.MapMode = "FlatFace"
sketch7.AttachmentOffset = App.Placement(V(0, 0, -9.742766), App.Rotation())
sketch7.addGeometry([
    Part.Circle(V(-1.3, 3.1, 0), V(0, 0, 1), 1.1),  # 0
    Part.Circle(V(-3.8, 3.1, 0), V(0, 0, 1), 1.1),  # 1
    Part.Circle(V(-6.3, 3.1, 0), V(0, 0, 1), 1.1),  # 2
    Part.Circle(V(1.3, 3.1, 0), V(0, 0, 1), 1.1),  # 3
    Part.Circle(V(3.8, 3.1, 0), V(0, 0, 1), 1.1),  # 4
    Part.Circle(V(6.3, 3.1, 0), V(0, 0, 1), 1.1),  # 5
], False)
sketch7.addConstraint([
    Sketcher.Constraint("Equal", 0, 1),
    Sketcher.Constraint("Equal", 1, 2),
    Sketcher.Constraint("Equal", 2, 3),
    Sketcher.Constraint("Equal", 3, 4),
    Sketcher.Constraint("Equal", 4, 5),
    Sketcher.Constraint("Symmetric", 0, 3, 3, 3, -2),
    Sketcher.Constraint("Symmetric", 1, 3, 4, 3, -2),
    Sketcher.Constraint("Symmetric", 2, 3, 5, 3, -2),
    Sketcher.Constraint("Horizontal", 0, 3, 1, 3),
    Sketcher.Constraint("Horizontal", 1, 3, 2, 3),
    Sketcher.Constraint("Diameter", 0, Q("0.084 in")),
    Sketcher.Constraint("DistanceX", 1, 3, 0, 3, Q("0.1 in")),
    Sketcher.Constraint("DistanceX", 2, 3, 1, 3, Q("0.1 in")),
    Sketcher.Constraint("DistanceX", 0, 3, 3, 3, Q("0.1 in")),
    Sketcher.Constraint("DistanceY", -1, 1, 0, 3, Q("0.124 in")),
])
sketch7.setExpression("Constraints[10]", "Params.sketch7_diameter")
pocket4 = body.newObject("PartDesign::Pocket", "Pocket003")
pocket4.Profile = sketch7
pocket4.setExpression("Length", "Params.pocket4_length")
pocket4.Reversed = True

# Sketch on XZ plane
sketch8 = body.newObject("Sketcher::SketchObject", "Sketch007")
sketch8.AttachmentSupport = (doc.getObject("XZ_Plane"), [""])
sketch8.MapMode = "FlatFace"
sketch8.AttachmentOffset = App.Placement(V(0, 0, -9.742766), App.Rotation())
sketch8.addGeometry([
    Part.Circle(V(-1.3, -3.1, 0), V(0, 0, 1), 1.1),  # 0
    Part.Circle(V(-3.8, -3.1, 0), V(0, 0, 1), 1.1),  # 1
    Part.Circle(V(-6.3, -3.1, 0), V(0, 0, 1), 1.1),  # 2
    Part.Circle(V(1.3, -3.1, 0), V(0, 0, 1), 1.1),  # 3
    Part.Circle(V(3.8, -3.1, 0), V(0, 0, 1), 1.1),  # 4
    Part.Circle(V(6.3, -3.1, 0), V(0, 0, 1), 1.1),  # 5
], False)
sketch8.addConstraint([
    Sketcher.Constraint("Equal", 0, 1),
    Sketcher.Constraint("Equal", 1, 2),
    Sketcher.Constraint("Equal", 2, 3),
    Sketcher.Constraint("Equal", 3, 4),
    Sketcher.Constraint("Equal", 4, 5),
    Sketcher.Constraint("Symmetric", 0, 3, 3, 3, -2),
    Sketcher.Constraint("Symmetric", 1, 3, 4, 3, -2),
    Sketcher.Constraint("Symmetric", 2, 3, 5, 3, -2),
    Sketcher.Constraint("Horizontal", 0, 3, 1, 3),
    Sketcher.Constraint("Horizontal", 1, 3, 2, 3),
    Sketcher.Constraint("Diameter", 0, Q("0.084 in")),
    Sketcher.Constraint("DistanceX", 1, 3, 0, 3, Q("0.1 in")),
    Sketcher.Constraint("DistanceX", 2, 3, 1, 3, Q("0.1 in")),
    Sketcher.Constraint("DistanceX", 0, 3, 3, 3, Q("0.1 in")),
    Sketcher.Constraint("DistanceY", 0, 3, -1, 1, Q("0.124 in")),
])
sketch8.setExpression("Constraints[10]", "Params.sketch8_diameter")
pocket5 = body.newObject("PartDesign::Pocket", "Pocket004")
pocket5.Profile = sketch8
pocket5.setExpression("Length", "Params.pocket5_length")
pocket5.Reversed = True

# Sketch on XZ plane
sketch9 = body.newObject("Sketcher::SketchObject", "Sketch008")
sketch9.AttachmentSupport = (doc.getObject("XZ_Plane"), [""])
sketch9.MapMode = "FlatFace"
sketch9.AttachmentOffset = App.Placement(V(0, 0, -0.063 * 25.4), App.Rotation())
sketch9.addGeometry([
    Part.Circle(V(-15.9, 7.6, 0), V(0, 0, 1), 2.2),
    Part.Circle(V(-15.9, 7.6, 0), V(0, 0, 1), 1.4),
    Part.Circle(V(-15.9, -7.6, 0), V(0, 0, 1), 2.2),
    Part.Circle(V(-15.9, -7.6, 0), V(0, 0, 1), 1.4),
], False)
sketch9.addConstraint([
    Sketcher.Constraint("Coincident", 1, 3, 0, 3),
    Sketcher.Constraint("Coincident", 3, 3, 2, 3),
    Sketcher.Constraint("Equal", 0, 2),
    Sketcher.Constraint("Equal", 1, 3),
    Sketcher.Constraint("Symmetric", 0, 3, 2, 3, -1),
    Sketcher.Constraint("Diameter", 0, Q("0.17 in")),
    Sketcher.Constraint("Diameter", 1, Q("0.112 in")),
    Sketcher.Constraint("DistanceY", -1, 1, 0, 3, Q("0.3 in")),
    Sketcher.Constraint("DistanceX", 0, 3, -1, 1, Q("0.625 in")),
])
sketch9.setExpression("Constraints[5]", "Params.sketch9_diameter")
sketch9.setExpression("Constraints[6]", "Params.sketch9_diameter2")
pad4 = body.newObject("PartDesign::Pad", "Pad003")
pad4.Profile = sketch9
pad4.setExpression("Length", "Params.pad4_length")
pad4.Reversed = True

doc.recompute()
